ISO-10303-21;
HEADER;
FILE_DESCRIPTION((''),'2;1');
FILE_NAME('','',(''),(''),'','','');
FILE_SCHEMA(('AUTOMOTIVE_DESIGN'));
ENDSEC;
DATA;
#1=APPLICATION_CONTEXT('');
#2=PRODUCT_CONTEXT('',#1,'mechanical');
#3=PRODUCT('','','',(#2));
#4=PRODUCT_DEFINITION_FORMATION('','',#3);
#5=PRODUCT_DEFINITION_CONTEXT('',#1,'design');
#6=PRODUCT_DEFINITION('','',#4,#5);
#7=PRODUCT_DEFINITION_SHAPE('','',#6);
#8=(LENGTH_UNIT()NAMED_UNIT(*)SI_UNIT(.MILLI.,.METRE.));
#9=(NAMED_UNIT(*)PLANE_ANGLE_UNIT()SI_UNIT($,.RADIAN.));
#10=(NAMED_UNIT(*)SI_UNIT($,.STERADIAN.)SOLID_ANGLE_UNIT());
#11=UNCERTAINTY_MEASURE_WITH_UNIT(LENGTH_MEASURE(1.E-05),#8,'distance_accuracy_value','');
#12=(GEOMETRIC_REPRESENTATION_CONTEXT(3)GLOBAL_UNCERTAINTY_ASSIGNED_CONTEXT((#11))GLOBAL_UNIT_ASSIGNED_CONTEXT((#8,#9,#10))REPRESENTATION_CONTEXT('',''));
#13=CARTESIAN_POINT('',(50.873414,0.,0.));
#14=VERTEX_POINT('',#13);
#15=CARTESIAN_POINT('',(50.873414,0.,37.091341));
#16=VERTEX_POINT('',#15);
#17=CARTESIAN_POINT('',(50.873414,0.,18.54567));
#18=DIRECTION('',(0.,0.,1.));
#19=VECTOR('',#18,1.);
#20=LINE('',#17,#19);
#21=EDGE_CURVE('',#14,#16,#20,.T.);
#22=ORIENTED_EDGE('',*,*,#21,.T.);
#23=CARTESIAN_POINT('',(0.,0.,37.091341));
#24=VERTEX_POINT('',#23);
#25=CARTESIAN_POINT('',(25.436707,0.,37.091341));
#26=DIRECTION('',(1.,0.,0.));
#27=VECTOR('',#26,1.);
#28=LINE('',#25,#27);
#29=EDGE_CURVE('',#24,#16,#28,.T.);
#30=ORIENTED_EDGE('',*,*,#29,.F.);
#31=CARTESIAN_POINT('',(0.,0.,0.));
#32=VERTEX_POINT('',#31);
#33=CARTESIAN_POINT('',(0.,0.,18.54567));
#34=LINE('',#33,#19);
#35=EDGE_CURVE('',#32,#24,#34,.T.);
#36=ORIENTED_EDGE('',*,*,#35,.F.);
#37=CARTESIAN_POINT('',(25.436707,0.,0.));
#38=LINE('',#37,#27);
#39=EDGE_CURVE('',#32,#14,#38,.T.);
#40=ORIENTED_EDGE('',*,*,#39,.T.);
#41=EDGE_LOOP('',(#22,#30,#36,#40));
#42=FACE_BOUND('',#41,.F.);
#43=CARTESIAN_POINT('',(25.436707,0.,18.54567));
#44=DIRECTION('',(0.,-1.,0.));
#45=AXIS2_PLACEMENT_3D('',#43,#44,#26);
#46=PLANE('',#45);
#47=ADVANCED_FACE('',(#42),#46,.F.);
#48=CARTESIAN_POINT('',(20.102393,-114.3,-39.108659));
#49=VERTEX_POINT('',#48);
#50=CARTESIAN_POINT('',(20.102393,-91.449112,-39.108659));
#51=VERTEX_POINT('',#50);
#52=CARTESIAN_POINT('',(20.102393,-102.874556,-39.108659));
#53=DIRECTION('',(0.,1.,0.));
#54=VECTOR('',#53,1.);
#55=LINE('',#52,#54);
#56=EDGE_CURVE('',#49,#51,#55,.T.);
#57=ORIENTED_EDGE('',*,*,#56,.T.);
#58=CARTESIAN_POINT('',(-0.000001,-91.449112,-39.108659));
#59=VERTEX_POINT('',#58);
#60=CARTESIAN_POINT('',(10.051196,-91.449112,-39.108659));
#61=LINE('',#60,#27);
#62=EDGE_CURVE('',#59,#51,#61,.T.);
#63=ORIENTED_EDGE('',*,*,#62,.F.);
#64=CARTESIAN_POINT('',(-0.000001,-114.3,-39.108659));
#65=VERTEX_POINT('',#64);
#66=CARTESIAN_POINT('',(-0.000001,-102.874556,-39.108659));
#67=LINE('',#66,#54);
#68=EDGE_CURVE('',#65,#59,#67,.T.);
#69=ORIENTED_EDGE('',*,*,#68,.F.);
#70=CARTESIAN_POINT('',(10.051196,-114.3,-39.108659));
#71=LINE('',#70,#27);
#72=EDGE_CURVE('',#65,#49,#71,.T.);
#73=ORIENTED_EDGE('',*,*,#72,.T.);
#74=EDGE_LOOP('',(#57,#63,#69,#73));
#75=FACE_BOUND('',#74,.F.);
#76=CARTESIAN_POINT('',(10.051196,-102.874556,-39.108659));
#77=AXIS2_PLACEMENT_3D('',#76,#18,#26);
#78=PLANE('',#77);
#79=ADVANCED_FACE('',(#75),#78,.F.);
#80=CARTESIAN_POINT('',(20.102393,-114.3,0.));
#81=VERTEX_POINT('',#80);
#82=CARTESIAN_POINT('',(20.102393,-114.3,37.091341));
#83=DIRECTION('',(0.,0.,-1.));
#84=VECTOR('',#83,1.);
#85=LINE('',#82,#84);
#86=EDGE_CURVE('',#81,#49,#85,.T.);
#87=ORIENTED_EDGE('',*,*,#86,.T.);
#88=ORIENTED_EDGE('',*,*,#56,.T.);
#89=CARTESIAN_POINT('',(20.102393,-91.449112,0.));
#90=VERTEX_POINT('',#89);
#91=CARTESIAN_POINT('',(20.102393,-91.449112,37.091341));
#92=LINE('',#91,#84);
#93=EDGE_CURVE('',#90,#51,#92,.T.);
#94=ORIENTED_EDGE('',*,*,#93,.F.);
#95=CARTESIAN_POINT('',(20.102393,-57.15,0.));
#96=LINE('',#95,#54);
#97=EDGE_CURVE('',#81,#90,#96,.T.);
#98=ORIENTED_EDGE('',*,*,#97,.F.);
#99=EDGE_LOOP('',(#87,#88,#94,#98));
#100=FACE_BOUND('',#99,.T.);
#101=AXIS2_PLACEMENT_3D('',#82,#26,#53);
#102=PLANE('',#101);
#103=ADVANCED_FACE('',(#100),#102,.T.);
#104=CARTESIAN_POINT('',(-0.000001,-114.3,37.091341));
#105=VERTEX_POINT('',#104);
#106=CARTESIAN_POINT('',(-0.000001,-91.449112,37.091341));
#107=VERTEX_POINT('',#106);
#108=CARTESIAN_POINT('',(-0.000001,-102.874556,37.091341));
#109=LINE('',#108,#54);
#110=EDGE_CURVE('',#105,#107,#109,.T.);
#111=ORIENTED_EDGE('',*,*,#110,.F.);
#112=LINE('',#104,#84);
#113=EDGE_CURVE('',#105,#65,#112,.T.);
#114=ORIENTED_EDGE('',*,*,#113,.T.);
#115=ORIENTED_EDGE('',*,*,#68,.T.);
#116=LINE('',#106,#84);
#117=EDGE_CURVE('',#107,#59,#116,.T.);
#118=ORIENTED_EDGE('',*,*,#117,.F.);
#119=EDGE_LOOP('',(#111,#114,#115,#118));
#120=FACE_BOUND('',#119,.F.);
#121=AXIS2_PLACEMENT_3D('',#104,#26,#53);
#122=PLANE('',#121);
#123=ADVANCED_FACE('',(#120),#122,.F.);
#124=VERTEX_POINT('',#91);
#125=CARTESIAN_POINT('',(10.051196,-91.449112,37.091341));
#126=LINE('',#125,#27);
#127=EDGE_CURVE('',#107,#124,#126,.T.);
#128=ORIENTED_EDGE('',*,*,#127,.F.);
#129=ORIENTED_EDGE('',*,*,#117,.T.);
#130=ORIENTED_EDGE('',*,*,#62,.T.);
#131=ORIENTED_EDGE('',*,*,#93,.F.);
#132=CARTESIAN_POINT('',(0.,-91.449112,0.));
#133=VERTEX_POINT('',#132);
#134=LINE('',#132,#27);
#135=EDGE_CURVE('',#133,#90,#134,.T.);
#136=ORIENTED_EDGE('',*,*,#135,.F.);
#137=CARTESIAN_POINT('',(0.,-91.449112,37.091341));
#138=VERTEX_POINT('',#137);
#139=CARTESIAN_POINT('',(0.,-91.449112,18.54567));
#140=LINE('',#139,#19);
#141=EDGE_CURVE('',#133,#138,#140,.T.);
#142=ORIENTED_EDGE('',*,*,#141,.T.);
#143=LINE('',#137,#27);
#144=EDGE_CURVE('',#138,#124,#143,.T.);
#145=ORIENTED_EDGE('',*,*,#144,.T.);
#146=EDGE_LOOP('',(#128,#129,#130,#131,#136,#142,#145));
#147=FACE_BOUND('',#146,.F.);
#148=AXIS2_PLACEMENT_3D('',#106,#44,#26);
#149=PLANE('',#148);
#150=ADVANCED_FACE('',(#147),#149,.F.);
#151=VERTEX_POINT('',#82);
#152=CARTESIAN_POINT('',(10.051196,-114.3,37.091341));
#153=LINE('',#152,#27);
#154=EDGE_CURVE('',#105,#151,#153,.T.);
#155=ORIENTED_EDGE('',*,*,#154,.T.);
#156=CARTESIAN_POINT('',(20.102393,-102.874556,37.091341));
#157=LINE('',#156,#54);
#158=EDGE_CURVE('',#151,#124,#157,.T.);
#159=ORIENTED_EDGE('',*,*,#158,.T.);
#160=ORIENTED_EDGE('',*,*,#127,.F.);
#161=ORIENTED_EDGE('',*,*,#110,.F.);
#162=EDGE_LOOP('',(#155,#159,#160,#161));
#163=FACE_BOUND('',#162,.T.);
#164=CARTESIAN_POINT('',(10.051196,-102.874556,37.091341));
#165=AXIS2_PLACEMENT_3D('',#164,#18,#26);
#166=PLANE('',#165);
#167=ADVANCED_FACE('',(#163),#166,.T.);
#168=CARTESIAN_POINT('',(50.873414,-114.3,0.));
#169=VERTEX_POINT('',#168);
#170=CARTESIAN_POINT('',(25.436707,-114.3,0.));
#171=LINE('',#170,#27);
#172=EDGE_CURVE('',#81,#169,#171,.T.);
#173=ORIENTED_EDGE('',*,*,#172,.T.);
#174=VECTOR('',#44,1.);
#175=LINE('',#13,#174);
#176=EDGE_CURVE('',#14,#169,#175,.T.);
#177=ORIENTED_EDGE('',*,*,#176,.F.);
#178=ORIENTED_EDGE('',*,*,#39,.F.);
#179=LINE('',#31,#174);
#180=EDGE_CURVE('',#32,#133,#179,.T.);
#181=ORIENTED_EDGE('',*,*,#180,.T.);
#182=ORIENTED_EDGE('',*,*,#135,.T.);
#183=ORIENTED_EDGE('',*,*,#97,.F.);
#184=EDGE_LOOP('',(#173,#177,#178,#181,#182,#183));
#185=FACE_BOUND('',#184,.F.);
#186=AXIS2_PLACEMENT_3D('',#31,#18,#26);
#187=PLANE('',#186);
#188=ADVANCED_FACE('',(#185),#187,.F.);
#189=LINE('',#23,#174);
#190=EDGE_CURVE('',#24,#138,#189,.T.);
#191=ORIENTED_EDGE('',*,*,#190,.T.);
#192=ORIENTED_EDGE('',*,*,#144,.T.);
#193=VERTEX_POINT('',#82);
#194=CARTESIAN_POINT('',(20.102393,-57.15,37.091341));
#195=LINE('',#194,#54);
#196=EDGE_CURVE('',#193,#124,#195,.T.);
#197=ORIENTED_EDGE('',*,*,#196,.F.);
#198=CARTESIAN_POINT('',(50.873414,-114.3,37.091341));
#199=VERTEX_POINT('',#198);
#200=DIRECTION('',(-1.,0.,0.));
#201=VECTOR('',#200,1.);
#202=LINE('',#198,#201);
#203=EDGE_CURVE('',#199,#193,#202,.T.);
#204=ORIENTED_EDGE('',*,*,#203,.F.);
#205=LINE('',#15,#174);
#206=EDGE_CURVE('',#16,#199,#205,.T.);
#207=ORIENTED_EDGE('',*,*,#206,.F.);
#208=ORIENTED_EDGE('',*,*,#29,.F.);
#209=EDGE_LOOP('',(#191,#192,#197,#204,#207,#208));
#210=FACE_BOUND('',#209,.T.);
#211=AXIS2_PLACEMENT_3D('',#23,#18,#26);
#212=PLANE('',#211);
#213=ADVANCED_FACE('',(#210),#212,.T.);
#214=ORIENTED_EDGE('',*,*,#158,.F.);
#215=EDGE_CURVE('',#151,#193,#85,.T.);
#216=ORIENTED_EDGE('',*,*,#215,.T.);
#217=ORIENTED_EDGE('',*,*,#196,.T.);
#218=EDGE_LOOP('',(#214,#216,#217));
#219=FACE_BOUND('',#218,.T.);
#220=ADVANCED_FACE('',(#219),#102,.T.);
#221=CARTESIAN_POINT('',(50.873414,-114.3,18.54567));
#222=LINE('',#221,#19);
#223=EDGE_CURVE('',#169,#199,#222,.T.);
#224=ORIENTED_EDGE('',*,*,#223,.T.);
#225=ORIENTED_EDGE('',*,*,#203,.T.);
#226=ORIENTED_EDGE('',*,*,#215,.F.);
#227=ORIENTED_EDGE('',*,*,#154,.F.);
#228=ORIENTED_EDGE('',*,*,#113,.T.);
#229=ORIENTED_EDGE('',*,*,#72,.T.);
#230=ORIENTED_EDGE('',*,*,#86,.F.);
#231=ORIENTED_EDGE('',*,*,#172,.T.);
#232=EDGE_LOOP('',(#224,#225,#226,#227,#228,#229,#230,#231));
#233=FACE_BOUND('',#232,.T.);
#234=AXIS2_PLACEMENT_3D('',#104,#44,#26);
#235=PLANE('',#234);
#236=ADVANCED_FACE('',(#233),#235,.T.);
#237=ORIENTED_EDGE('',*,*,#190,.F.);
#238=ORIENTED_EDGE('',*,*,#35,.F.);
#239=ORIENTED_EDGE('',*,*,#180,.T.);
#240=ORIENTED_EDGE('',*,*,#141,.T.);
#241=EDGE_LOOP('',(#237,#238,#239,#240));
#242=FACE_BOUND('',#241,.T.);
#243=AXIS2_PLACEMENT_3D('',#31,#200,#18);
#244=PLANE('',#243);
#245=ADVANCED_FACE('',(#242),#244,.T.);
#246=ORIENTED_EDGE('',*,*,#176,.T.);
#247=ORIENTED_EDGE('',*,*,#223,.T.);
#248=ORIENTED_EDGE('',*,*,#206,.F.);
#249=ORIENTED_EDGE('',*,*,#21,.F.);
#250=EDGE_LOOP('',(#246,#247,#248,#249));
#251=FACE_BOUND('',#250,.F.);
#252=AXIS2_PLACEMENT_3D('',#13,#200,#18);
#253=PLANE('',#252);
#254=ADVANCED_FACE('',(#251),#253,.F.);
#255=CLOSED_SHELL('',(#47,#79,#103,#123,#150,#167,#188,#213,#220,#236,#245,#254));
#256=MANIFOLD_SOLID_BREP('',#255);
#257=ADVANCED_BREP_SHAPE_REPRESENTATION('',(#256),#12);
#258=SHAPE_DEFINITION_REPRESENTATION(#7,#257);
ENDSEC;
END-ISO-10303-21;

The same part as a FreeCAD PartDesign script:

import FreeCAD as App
import Part
import Sketcher

V = App.Vector
Q = App.Units.Quantity

doc = App.newDocument("Part")
body = doc.addObject("PartDesign::Body", "Body")

sketch1 = body.newObject("Sketcher::SketchObject", "Sketch")
sketch1.AttachmentSupport = (doc.getObject("XZ_Plane"), [""])
sketch1.MapMode = "FlatFace"
sketch1.addGeometry([
    Part.LineSegment(V(0, 37, 0), V(0, 0, 0)),
    Part.LineSegment(V(0, 0, 0), V(51, 0, 0)),
    Part.LineSegment(V(51, 0, 0), V(51, 37, 0)),
    Part.LineSegment(V(51, 37, 0), V(0, 37, 0)),
], False)
sketch1.addConstraint([
    Sketcher.Constraint("Coincident", 0, 2, 1, 1),
    Sketcher.Constraint("Coincident", 1, 2, 2, 1),
    Sketcher.Constraint("Coincident", 2, 2, 3, 1),
    Sketcher.Constraint("Coincident", 3, 2, 0, 1),
    Sketcher.Constraint("Vertical", 0),
    Sketcher.Constraint("Horizontal", 1),
    Sketcher.Constraint("Vertical", 2),
    Sketcher.Constraint("Horizontal", 3),
    Sketcher.Constraint("Coincident", 0, 2, -1, 1),
    Sketcher.Constraint("DistanceY", 0, 2, 0, 1, 37.091341),
    Sketcher.Constraint("DistanceX", 1, 1, 1, 2, 50.873414),
])
pad1 = body.newObject("PartDesign::Pad", "Pad")
pad1.Profile = sketch1
pad1.Length = Q("4.5 in")

sketch2 = body.newObject("Sketcher::SketchObject", "Sketch001")
sketch2.AttachmentSupport = (doc.getObject("XY_Plane"), [""])
sketch2.MapMode = "FlatFace"
sketch2.AttachmentOffset = App.Placement(V(0, 0, 37.091341), App.Rotation())
sketch2.addGeometry([
    Part.LineSegment(V(0, -91, 0), V(0, -114, 0)),
    Part.LineSegment(V(0, -114, 0), V(20, -114, 0)),
    Part.LineSegment(V(20, -114, 0), V(20, -91, 0)),
    Part.LineSegment(V(20, -91, 0), V(0, -91, 0)),
], False)
sketch2.addConstraint([
    Sketcher.Constraint("Coincident", 0, 2, 1, 1),
    Sketcher.Constraint("Coincident", 1, 2, 2, 1),
    Sketcher.Constraint("Coincident", 2, 2, 3, 1),
    Sketcher.Constraint("Coincident", 3, 2, 0, 1),
    Sketcher.Constraint("Vertical", 0),
    Sketcher.Constraint("Horizontal", 1),
    Sketcher.Constraint("Vertical", 2),
    Sketcher.Constraint("Horizontal", 3),
    Sketcher.Constraint("PointOnObject", 0, 2, -2),
    Sketcher.Constraint("DistanceY", 0, 2, -1, 1, Q("4.5 in")),
    Sketcher.Constraint("DistanceX", 1, 1, 1, 2, 20.102393),
    Sketcher.Constraint("DistanceY", 0, 2, 0, 1, 22.850888),
])
pad2 = body.newObject("PartDesign::Pad", "Pad001")
pad2.Profile = sketch2
pad2.Length = Q("3 in")
pad2.Reversed = True

sketch3 = body.newObject("Sketcher::SketchObject", "Sketch002")
sketch3.AttachmentSupport = (doc.getObject("XZ_Plane"), [""])
sketch3.MapMode = "FlatFace"
sketch3.AttachmentOffset = App.Placement(V(0, 0, 4.5 * 25.4), App.Rotation())
sketch3.addGeometry([
    Part.LineSegment(V(20, 37, 0), V(20, 14, 0)),
    Part.LineSegment(V(20, 14, 0), V(33, 14, 0)),
    Part.LineSegment(V(33, 14, 0), V(33, 37, 0)),
    Part.LineSegment(V(33, 37, 0), V(20, 37, 0)),
], False)
sketch3.addConstraint([
    Sketcher.Constraint("Coincident", 0, 2, 1, 1),
    Sketcher.Constraint("Coincident", 1, 2, 2, 1),
    Sketcher.Constraint("Coincident", 2, 2, 3, 1),
    Sketcher.Constraint("Coincident", 3, 2, 0, 1),
    Sketcher.Constraint("Vertical", 0),
    Sketcher.Constraint("Horizontal", 1),
    Sketcher.Constraint("Vertical", 2),
    Sketcher.Constraint("Horizontal", 3),
    Sketcher.Constraint("DistanceX", 1, 1, 1, 2, 12.826613),
    Sketcher.Constraint("DistanceY", 0, 2, 0, 1, 22.823585),
    Sketcher.Constraint("DistanceX", -1, 1, 0, 2, 20.292251),
    Sketcher.Constraint("DistanceY", -1, 1, 2, 2, 37.091341),
])
pad3 = body.newObject("PartDesign::Pad", "Pad002")
pad3.Profile = sketch3
pad3.Length = Q("0.2 in")
pad3.Reversed = True

doc.recompute()
